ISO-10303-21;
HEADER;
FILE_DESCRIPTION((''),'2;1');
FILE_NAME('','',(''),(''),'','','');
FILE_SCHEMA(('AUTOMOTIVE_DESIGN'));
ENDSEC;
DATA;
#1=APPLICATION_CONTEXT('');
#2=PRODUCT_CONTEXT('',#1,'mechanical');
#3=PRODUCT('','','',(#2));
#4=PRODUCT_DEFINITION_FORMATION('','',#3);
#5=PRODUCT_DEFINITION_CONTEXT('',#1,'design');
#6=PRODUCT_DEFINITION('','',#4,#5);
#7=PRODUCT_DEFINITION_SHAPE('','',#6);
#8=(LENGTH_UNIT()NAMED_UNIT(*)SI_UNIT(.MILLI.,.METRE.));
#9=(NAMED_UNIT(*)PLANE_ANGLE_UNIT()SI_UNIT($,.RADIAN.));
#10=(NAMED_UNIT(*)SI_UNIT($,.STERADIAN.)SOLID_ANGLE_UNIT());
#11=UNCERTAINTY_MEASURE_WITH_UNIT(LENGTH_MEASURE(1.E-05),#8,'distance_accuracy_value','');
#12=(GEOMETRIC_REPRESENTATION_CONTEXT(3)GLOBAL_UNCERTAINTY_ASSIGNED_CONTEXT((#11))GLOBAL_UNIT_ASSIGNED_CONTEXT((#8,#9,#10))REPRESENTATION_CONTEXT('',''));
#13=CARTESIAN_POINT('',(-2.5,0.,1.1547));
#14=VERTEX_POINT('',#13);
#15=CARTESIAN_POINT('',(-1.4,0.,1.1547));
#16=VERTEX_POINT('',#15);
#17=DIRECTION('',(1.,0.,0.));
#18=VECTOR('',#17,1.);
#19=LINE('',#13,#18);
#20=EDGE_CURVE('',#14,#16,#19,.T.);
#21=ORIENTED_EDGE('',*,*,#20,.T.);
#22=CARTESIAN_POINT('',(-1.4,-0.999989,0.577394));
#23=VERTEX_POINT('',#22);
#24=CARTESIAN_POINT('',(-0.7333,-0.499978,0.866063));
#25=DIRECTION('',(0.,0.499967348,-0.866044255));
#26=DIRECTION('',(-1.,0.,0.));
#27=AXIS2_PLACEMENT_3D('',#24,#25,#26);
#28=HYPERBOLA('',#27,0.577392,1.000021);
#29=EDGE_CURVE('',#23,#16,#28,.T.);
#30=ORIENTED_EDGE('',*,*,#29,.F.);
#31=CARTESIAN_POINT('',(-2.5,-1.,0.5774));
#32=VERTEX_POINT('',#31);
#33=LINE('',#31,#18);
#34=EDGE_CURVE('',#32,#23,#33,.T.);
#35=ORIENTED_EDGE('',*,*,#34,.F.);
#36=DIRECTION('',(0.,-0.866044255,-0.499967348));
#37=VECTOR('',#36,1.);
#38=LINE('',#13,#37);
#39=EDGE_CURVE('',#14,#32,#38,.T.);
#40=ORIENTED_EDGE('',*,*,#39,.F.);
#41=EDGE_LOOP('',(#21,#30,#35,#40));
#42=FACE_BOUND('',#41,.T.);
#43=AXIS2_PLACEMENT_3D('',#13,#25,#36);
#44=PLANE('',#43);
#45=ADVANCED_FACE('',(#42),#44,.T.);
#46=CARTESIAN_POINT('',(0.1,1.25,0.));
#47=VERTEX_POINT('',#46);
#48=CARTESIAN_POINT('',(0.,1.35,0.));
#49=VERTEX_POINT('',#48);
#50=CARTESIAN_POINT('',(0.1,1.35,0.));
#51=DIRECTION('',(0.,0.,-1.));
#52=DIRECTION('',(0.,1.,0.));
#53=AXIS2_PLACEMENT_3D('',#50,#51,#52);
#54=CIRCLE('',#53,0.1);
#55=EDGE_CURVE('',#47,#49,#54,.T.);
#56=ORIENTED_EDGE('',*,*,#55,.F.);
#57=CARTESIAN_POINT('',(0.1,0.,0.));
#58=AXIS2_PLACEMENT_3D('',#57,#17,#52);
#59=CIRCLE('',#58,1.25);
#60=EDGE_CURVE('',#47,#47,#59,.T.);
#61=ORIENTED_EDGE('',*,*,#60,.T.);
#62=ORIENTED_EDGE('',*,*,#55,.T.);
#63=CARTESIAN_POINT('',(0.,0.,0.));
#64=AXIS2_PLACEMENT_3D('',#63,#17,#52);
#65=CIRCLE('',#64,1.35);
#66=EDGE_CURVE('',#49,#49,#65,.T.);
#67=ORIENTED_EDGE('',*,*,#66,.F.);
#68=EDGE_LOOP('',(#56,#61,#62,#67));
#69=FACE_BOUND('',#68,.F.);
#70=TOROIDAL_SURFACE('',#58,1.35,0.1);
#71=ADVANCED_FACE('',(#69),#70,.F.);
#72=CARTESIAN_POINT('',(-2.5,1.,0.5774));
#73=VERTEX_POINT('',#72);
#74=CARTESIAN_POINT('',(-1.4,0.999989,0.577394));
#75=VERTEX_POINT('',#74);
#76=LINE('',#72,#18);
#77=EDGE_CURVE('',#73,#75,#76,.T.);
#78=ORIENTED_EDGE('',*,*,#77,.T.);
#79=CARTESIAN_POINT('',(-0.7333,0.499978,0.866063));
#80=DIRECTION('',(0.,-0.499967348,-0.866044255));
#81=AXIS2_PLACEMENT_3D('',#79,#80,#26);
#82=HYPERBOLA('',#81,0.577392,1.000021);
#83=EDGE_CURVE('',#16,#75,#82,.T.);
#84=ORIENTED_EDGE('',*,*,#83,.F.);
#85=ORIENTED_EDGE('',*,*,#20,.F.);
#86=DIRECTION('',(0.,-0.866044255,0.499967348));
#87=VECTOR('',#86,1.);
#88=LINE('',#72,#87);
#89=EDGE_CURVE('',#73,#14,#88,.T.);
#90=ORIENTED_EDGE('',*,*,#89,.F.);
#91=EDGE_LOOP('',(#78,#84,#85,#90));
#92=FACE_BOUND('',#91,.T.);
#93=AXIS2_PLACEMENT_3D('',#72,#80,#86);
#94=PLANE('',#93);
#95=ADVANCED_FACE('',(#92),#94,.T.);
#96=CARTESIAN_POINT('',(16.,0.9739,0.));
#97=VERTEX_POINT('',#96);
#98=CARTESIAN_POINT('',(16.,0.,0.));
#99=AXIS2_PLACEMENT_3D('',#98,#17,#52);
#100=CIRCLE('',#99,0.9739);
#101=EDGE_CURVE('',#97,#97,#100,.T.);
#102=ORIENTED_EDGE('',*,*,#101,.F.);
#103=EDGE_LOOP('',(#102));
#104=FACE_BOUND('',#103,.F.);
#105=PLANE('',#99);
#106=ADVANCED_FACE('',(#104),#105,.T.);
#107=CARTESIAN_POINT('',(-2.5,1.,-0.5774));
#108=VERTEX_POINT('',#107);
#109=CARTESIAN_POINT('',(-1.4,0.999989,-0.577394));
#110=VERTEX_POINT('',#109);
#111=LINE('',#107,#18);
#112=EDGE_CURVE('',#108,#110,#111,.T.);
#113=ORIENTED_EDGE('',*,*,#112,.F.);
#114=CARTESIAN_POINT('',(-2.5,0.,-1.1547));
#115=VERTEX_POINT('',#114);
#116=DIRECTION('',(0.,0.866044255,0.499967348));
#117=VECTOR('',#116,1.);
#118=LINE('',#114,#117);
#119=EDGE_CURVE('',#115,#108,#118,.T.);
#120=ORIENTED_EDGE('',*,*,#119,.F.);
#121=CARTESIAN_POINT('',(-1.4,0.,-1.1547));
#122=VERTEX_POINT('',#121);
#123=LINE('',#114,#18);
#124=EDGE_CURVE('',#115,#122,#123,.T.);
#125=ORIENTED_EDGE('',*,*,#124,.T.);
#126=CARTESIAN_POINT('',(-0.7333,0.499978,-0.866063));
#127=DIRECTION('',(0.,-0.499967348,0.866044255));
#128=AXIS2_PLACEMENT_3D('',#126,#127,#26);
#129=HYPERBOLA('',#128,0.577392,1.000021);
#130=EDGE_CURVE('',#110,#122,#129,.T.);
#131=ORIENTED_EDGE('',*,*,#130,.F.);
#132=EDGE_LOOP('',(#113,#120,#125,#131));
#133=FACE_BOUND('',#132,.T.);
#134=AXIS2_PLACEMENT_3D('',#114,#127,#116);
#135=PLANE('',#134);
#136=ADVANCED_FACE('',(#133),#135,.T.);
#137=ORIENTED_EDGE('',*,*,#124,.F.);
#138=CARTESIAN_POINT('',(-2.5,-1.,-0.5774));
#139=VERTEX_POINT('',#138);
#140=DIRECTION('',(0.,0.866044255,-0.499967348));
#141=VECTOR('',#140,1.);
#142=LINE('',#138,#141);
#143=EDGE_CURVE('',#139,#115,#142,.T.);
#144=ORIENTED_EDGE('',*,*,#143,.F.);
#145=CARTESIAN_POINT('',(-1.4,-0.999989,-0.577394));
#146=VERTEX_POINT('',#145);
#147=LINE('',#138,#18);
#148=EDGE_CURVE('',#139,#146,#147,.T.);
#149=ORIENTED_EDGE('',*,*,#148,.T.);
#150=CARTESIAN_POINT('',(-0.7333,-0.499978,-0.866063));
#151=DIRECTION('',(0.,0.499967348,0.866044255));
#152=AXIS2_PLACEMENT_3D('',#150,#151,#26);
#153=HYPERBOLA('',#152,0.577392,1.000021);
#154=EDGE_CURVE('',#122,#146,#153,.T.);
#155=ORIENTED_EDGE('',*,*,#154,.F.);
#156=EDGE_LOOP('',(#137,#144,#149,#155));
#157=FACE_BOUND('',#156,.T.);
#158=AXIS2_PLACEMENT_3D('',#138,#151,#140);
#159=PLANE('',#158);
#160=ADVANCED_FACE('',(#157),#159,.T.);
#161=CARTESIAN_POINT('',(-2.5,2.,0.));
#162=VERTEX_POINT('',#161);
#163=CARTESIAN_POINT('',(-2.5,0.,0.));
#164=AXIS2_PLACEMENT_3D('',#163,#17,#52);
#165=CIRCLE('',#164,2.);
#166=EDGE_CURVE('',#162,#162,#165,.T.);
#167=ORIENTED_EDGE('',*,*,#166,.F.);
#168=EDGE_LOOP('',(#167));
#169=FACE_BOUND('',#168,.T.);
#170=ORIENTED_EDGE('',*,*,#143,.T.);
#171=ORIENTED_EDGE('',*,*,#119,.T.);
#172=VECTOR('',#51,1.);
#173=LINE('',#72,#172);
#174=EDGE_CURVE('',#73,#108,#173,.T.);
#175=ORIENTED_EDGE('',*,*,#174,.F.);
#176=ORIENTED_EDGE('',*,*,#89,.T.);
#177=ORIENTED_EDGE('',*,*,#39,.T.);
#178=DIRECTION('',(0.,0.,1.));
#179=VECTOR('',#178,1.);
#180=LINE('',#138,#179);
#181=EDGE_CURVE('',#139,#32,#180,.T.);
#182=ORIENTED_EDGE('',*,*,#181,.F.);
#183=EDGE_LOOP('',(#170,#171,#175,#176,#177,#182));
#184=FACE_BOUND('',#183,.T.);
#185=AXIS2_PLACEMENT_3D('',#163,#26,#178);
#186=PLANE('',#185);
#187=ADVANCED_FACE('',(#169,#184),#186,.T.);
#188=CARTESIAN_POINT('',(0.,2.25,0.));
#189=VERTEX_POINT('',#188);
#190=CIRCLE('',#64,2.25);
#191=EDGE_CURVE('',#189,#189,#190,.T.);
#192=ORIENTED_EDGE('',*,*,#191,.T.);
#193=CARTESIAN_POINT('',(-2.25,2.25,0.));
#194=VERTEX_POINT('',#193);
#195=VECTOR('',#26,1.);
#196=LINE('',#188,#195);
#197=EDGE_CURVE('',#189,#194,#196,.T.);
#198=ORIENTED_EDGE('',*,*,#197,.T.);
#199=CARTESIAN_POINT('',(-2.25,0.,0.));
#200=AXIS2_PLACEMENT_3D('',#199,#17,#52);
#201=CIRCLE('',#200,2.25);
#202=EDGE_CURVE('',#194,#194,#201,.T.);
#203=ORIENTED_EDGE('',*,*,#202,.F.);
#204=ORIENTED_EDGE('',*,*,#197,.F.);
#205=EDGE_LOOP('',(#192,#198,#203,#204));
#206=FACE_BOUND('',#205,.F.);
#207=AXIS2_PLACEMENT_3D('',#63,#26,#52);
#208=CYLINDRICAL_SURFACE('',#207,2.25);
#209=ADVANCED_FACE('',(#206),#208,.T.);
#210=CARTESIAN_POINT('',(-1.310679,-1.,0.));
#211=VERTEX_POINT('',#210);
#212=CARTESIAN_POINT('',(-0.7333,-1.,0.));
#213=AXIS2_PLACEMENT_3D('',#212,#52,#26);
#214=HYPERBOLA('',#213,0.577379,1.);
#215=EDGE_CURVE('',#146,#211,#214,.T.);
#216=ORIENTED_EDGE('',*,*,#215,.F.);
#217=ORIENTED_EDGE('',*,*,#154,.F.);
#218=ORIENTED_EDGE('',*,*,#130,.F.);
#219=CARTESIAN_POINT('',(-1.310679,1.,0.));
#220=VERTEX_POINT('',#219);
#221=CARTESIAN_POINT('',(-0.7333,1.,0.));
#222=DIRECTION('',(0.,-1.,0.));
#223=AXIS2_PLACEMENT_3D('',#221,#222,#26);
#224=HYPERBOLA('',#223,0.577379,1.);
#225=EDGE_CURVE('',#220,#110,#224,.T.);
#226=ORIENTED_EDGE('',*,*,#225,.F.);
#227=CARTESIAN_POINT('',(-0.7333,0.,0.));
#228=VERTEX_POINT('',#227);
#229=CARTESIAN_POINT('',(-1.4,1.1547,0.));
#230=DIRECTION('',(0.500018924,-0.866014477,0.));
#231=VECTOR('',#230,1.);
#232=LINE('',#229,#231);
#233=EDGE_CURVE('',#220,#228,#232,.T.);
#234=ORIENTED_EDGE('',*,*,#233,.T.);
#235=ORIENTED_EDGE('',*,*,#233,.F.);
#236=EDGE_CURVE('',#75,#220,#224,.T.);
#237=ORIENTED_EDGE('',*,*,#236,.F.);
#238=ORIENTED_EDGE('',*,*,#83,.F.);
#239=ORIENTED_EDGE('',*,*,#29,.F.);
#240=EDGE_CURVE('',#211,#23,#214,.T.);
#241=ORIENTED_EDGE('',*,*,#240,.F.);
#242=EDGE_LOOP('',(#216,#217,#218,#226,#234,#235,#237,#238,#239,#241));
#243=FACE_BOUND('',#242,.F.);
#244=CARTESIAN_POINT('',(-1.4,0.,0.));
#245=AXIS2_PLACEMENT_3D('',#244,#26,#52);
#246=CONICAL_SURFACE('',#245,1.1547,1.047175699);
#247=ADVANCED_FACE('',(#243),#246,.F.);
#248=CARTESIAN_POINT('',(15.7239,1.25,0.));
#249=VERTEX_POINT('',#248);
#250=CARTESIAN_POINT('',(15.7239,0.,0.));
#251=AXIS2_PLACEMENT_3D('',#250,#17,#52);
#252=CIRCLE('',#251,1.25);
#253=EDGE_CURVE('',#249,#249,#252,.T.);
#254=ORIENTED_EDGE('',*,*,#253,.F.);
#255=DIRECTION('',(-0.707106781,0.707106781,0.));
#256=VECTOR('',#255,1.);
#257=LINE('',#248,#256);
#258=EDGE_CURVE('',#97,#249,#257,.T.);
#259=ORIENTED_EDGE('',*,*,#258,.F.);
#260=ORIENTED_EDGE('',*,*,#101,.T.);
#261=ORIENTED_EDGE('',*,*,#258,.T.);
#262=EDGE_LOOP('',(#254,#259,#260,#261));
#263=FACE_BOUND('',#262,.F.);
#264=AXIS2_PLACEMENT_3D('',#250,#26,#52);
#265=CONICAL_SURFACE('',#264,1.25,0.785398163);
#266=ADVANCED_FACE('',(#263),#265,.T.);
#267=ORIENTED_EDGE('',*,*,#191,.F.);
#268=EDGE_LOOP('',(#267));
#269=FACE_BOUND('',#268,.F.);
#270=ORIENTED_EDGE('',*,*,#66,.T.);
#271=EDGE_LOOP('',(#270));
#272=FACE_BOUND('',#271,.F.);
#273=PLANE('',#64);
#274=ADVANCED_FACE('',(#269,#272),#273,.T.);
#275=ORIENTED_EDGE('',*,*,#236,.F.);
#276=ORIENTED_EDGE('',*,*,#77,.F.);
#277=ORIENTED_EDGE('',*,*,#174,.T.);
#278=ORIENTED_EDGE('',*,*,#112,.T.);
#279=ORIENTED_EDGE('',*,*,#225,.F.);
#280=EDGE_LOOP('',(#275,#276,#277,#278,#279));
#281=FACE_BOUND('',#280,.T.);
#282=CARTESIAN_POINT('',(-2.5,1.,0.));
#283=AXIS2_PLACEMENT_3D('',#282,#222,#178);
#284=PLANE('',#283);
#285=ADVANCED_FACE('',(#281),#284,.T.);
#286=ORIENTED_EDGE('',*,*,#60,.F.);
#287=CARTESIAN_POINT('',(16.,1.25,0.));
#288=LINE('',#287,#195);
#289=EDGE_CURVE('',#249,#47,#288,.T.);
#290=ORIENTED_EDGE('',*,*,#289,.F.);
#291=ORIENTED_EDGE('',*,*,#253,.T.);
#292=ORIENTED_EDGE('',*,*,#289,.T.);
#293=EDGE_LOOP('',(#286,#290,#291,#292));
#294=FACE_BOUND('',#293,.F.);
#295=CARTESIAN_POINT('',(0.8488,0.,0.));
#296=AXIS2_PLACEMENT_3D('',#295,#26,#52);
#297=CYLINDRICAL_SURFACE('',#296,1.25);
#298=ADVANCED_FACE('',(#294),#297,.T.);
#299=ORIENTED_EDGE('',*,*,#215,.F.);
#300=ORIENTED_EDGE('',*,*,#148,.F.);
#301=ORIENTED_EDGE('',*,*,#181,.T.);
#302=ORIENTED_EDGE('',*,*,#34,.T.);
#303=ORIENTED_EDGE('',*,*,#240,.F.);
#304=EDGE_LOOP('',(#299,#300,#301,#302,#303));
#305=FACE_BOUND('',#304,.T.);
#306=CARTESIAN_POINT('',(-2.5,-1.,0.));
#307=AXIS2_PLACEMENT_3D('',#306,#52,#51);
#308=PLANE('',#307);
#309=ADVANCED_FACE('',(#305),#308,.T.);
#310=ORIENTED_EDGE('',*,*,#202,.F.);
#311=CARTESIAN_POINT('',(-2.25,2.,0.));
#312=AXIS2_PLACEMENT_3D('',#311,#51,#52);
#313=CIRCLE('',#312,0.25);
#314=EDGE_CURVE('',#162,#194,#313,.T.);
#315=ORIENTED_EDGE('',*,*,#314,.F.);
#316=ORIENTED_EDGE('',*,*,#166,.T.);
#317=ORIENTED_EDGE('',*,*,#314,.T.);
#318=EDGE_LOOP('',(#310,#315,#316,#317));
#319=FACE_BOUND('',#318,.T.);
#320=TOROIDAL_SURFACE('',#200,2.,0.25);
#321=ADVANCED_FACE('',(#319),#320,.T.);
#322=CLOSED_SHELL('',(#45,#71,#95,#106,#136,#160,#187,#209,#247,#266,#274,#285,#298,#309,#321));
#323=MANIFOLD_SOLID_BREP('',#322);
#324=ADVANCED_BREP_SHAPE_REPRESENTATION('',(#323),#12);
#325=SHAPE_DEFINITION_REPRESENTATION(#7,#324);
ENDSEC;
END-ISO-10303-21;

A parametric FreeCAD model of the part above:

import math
import FreeCAD as App
import Part
import Sketcher
Q = App.Units.Quantity


def edges_at(feature, points):
    """Names of the edges that pass closest to the given points."""
    edges = feature.Shape.Edges
    near = lambda p: min(range(len(edges)), key=lambda i: edges[i].distToShape(Part.Vertex(*p))[0])
    return sorted({f"Edge{near(p) + 1}" for p in points})


def add_polygon(sketch, points):
    """Adds a closed chain of lines whose ends are joined by coincident constraints."""
    first, n = sketch.GeometryCount, len(points)
    for a, b in zip(points, points[1:] + points[:1]):
        sketch.addGeometry(Part.LineSegment(App.Vector(*a, 0), App.Vector(*b, 0)), False)
    for i in range(n):
        sketch.addConstraint(Sketcher.Constraint("Coincident", first + i, 2, first + (i + 1) % n, 1))

doc = App.newDocument("Part")
params = doc.addObject("Spreadsheet::Sheet", "Params")
for row, (alias, value) in enumerate([
    ("sketch1_width", "16 mm"),
    ("sketch1_width2", "2.5 mm"),
    ("sketch1_width3", "1.1 mm"),
    ("sketch1_height", "1 mm"),
    ("sketch1_height2", "1.25 mm"),
    ("revolution_angle", "360 deg"),
    ("fillet_radius", "0.25 mm"),
    ("chamfer_size", "0.2761 mm"),
    ("chamfer_size2", "0.2761 mm"),
    ("fillet2_radius", "0.1 mm"),
], start=1):
    params.set(f"A{row}", alias)
    params.set(f"B{row}", "=" + value)
    params.setAlias(f"B{row}", alias)

body = doc.addObject("PartDesign::Body", "Body")

# Sketch on XY plane
sketch1 = body.newObject("Sketcher::SketchObject", "Sketch")
sketch1.AttachmentSupport = (doc.getObject("XY_Plane"), [""])
sketch1.MapMode = "FlatFace"
add_polygon(sketch1, [(-1.4, 1.2), (-0.7, 0), (16, 0), (16, 1.2), (0, 1.2), (0, 2.2), (-2.5, 2.2), (-2.5, 1.2)])  # lines 0-7
sketch1.addConstraint([
    Sketcher.Constraint("Horizontal", 1),
    Sketcher.Constraint("Vertical", 2),
    Sketcher.Constraint("Horizontal", 3),
    Sketcher.Constraint("Vertical", 4),
    Sketcher.Constraint("Horizontal", 5),
    Sketcher.Constraint("Vertical", 6),
    Sketcher.Constraint("Horizontal", 7),
    Sketcher.Constraint("PointOnObject", 0, 2, -1),
    Sketcher.Constraint("PointOnObject", 3, 2, -2),
    Sketcher.Constraint("DistanceX", 3, 2, 3, 1, Q("16 mm")),
    Sketcher.Constraint("DistanceX", 5, 2, 5, 1, Q("2.5 mm")),
    Sketcher.Constraint("DistanceX", 7, 1, 7, 2, Q("1.1 mm")),
    Sketcher.Constraint("DistanceY", 4, 1, 4, 2, Q("1 mm")),
    Sketcher.Constraint("DistanceY", 2, 1, 2, 2, Q("1.25 mm")),
    Sketcher.Constraint("DistanceX", 1, 1, 1, 2, Q("16.7333 mm")),
    Sketcher.Constraint("DistanceY", 6, 2, 6, 1, Q("1.0953 mm")),
])
sketch1.setExpression("Constraints[17]", "Params.sketch1_width")
sketch1.setExpression("Constraints[18]", "Params.sketch1_width2")
sketch1.setExpression("Constraints[19]", "Params.sketch1_width3")
sketch1.setExpression("Constraints[20]", "Params.sketch1_height")
sketch1.setExpression("Constraints[21]", "Params.sketch1_height2")
revolution = body.newObject("PartDesign::Revolution", "Revolution")
revolution.Profile = sketch1
revolution.ReferenceAxis = (sketch1, ["H_Axis"])
revolution.setExpression("Angle", "Params.revolution_angle")

# Sketch on YZ plane
sketch2 = body.newObject("Sketcher::SketchObject", "Sketch001")
sketch2.AttachmentSupport = (doc.getObject("YZ_Plane"), [""])
sketch2.MapMode = "FlatFace"
sketch2.AttachmentOffset = App.Placement(App.Vector(0, 0, -2.5), App.Rotation())
sketch2.addGeometry([
    Part.LineSegment(App.Vector(1, 0.6, 0), App.Vector(0, 1.2, 0)),  # 0
    Part.ArcOfCircle(Part.Circle(App.Vector(0, 0, 0), App.Vector(0, 0, 1), 1.2), math.radians(30), math.radians(90)),  # 1
    Part.ArcOfCircle(Part.Circle(App.Vector(0, 0, 0), App.Vector(0, 0, 1), 1.2), math.radians(90), math.radians(150)),  # 2
    Part.LineSegment(App.Vector(0, 1.2, 0), App.Vector(-1, 0.6, 0)),  # 3
    Part.ArcOfCircle(Part.Circle(App.Vector(0, 0, 0), App.Vector(0, 0, 1), 1.2), math.radians(-30), math.radians(30)),  # 4
    Part.LineSegment(App.Vector(1, 0.6, 0), App.Vector(1, -0.6, 0)),  # 5
    Part.LineSegment(App.Vector(-1, 0.6, 0), App.Vector(-1, -0.6, 0)),  # 6
    Part.ArcOfCircle(Part.Circle(App.Vector(0, 0, 0), App.Vector(0, 0, 1), 1.2), math.radians(150), math.radians(210)),  # 7
    Part.LineSegment(App.Vector(-1, -0.6, 0), App.Vector(0, -1.2, 0)),  # 8
    Part.ArcOfCircle(Part.Circle(App.Vector(0, 0, 0), App.Vector(0, 0, 1), 1.2), math.radians(-150), math.radians(-90)),  # 9
    Part.ArcOfCircle(Part.Circle(App.Vector(0, 0, 0), App.Vector(0, 0, 1), 1.2), math.radians(-90), math.radians(-30)),  # 10
    Part.LineSegment(App.Vector(0, -1.2, 0), App.Vector(1, -0.6, 0)),  # 11
], False)
sketch2.addConstraint([
    Sketcher.Constraint("Coincident", 0, 1, 1, 1),
    Sketcher.Constraint("Coincident", 1, 2, 0, 2),
    Sketcher.Constraint("Coincident", 2, 1, 3, 1),
    Sketcher.Constraint("Coincident", 3, 2, 2, 2),
    Sketcher.Constraint("Coincident", 4, 1, 5, 2),
    Sketcher.Constraint("Coincident", 5, 1, 4, 2),
    Sketcher.Constraint("Coincident", 6, 1, 7, 1),
    Sketcher.Constraint("Coincident", 7, 2, 6, 2),
    Sketcher.Constraint("Coincident", 8, 1, 9, 1),
    Sketcher.Constraint("Coincident", 9, 2, 8, 2),
    Sketcher.Constraint("Coincident", 10, 1, 11, 1),
    Sketcher.Constraint("Coincident", 11, 2, 10, 2),
    Sketcher.Constraint("Vertical", 5),
    Sketcher.Constraint("Vertical", 6),
    Sketcher.Constraint("Coincident", 1, 3, -1, 1),
    Sketcher.Constraint("Coincident", 2, 3, -1, 1),
    Sketcher.Constraint("Coincident", 4, 3, -1, 1),
    Sketcher.Constraint("Coincident", 7, 3, -1, 1),
    Sketcher.Constraint("Coincident", 9, 3, -1, 1),
    Sketcher.Constraint("Coincident", 10, 3, -1, 1),
    Sketcher.Constraint("Coincident", 2, 1, 1, 2),
    Sketcher.Constraint("Coincident", 5, 1, 0, 1),
    Sketcher.Constraint("Coincident", 6, 1, 3, 2),
    Sketcher.Constraint("Coincident", 8, 1, 7, 2),
    Sketcher.Constraint("Coincident", 10, 1, 9, 2),
    Sketcher.Constraint("PointOnObject", 1, 2, -2),
    Sketcher.Constraint("PointOnObject", 9, 2, -2),
    Sketcher.Constraint("Parallel", 0, 8),
    Sketcher.Constraint("Parallel", 3, 11),
    Sketcher.Constraint("DistanceX", -1, 1, 0, 1, Q("1 mm")),
    Sketcher.Constraint("Radius", 1, Q("1.1547 mm")),
])
pad1 = body.newObject("PartDesign::Pad", "Pad")
pad1.Profile = sketch2
pad1.Type = "UpToFirst"
doc.recompute()

fillet = body.newObject("PartDesign::Fillet", "Fillet")
fillet.Base = (pad1, edges_at(pad1, [(-2.5, -2.25, 0)]))
fillet.setExpression("Radius", "Params.fillet_radius")
doc.recompute()

chamfer = body.newObject("PartDesign::Chamfer", "Chamfer")
chamfer.Base = (fillet, edges_at(fillet, [(16, -1.25, 0)]))
chamfer.ChamferType = "Two distances"
chamfer.setExpression("Size", "Params.chamfer_size")
chamfer.setExpression("Size2", "Params.chamfer_size2")
doc.recompute()

fillet2 = body.newObject("PartDesign::Fillet", "Fillet001")
fillet2.Base = (chamfer, edges_at(chamfer, [(0, -1.25, 0)]))
fillet2.setExpression("Radius", "Params.fillet2_radius")

doc.recompute()
